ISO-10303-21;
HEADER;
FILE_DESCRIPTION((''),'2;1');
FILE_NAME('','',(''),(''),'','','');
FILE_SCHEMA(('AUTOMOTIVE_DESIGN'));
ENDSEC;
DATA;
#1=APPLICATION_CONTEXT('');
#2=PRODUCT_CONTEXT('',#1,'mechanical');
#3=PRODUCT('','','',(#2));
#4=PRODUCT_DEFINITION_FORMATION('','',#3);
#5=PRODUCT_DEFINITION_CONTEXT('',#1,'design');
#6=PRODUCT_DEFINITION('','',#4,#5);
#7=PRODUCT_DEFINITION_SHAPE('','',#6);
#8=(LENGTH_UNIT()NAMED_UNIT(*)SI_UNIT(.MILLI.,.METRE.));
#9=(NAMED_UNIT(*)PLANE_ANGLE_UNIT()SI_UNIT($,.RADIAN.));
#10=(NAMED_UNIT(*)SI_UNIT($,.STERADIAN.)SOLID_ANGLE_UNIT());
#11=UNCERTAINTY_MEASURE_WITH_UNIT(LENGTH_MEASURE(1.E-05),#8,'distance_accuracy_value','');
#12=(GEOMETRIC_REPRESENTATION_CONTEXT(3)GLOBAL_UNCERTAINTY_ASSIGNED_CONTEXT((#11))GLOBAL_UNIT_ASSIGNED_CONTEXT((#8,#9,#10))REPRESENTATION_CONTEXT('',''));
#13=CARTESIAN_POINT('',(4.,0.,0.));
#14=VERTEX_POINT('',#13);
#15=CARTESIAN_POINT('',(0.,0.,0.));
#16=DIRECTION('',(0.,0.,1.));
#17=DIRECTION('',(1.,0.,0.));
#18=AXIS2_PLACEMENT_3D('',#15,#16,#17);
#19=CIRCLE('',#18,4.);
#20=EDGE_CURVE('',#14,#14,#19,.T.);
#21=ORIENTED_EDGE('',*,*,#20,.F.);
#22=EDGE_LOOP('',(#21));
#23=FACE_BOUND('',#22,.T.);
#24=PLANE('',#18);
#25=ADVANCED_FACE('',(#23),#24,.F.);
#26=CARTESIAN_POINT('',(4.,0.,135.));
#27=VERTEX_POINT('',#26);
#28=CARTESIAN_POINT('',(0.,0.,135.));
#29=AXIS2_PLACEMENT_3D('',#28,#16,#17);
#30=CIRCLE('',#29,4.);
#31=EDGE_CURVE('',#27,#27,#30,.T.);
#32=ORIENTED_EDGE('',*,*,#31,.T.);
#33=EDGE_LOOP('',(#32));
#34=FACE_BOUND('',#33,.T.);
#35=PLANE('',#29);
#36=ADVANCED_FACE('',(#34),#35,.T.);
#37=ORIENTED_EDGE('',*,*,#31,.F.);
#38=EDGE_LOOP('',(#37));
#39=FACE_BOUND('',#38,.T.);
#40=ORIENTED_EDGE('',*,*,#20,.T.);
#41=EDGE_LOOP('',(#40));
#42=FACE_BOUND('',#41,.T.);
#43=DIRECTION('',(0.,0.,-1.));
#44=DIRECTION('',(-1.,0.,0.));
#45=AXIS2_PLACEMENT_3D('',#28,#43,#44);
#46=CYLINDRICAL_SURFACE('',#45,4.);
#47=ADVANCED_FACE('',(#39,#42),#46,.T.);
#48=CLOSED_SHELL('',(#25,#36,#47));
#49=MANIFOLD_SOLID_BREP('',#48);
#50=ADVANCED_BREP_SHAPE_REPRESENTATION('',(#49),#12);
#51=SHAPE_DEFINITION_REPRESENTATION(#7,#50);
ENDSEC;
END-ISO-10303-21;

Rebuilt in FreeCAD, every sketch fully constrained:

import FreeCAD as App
import Part
import Sketcher
from FreeCAD import Vector

doc = App.newDocument("Part")
body = doc.addObject("PartDesign::Body", "Body")

# Sketch on XY plane
sketch1 = body.newObject("Sketcher::SketchObject", "Sketch")
sketch1.AttachmentSupport = (doc.getObject("XY_Plane"), [""])
sketch1.MapMode = "FlatFace"
sketch1.addGeometry(Part.Circle(Vector(0, 0, 0), Vector(0, 0, 1), 4), False)
sketch1.addConstraint(Sketcher.Constraint("Coincident", 0, 3, -1, 1))
sketch1.addConstraint(Sketcher.Constraint("Diameter", 0, 8.0))
pad1 = body.newObject("PartDesign::Pad", "Pad")
pad1.Profile = sketch1
pad1.Length = 135

doc.recompute()
